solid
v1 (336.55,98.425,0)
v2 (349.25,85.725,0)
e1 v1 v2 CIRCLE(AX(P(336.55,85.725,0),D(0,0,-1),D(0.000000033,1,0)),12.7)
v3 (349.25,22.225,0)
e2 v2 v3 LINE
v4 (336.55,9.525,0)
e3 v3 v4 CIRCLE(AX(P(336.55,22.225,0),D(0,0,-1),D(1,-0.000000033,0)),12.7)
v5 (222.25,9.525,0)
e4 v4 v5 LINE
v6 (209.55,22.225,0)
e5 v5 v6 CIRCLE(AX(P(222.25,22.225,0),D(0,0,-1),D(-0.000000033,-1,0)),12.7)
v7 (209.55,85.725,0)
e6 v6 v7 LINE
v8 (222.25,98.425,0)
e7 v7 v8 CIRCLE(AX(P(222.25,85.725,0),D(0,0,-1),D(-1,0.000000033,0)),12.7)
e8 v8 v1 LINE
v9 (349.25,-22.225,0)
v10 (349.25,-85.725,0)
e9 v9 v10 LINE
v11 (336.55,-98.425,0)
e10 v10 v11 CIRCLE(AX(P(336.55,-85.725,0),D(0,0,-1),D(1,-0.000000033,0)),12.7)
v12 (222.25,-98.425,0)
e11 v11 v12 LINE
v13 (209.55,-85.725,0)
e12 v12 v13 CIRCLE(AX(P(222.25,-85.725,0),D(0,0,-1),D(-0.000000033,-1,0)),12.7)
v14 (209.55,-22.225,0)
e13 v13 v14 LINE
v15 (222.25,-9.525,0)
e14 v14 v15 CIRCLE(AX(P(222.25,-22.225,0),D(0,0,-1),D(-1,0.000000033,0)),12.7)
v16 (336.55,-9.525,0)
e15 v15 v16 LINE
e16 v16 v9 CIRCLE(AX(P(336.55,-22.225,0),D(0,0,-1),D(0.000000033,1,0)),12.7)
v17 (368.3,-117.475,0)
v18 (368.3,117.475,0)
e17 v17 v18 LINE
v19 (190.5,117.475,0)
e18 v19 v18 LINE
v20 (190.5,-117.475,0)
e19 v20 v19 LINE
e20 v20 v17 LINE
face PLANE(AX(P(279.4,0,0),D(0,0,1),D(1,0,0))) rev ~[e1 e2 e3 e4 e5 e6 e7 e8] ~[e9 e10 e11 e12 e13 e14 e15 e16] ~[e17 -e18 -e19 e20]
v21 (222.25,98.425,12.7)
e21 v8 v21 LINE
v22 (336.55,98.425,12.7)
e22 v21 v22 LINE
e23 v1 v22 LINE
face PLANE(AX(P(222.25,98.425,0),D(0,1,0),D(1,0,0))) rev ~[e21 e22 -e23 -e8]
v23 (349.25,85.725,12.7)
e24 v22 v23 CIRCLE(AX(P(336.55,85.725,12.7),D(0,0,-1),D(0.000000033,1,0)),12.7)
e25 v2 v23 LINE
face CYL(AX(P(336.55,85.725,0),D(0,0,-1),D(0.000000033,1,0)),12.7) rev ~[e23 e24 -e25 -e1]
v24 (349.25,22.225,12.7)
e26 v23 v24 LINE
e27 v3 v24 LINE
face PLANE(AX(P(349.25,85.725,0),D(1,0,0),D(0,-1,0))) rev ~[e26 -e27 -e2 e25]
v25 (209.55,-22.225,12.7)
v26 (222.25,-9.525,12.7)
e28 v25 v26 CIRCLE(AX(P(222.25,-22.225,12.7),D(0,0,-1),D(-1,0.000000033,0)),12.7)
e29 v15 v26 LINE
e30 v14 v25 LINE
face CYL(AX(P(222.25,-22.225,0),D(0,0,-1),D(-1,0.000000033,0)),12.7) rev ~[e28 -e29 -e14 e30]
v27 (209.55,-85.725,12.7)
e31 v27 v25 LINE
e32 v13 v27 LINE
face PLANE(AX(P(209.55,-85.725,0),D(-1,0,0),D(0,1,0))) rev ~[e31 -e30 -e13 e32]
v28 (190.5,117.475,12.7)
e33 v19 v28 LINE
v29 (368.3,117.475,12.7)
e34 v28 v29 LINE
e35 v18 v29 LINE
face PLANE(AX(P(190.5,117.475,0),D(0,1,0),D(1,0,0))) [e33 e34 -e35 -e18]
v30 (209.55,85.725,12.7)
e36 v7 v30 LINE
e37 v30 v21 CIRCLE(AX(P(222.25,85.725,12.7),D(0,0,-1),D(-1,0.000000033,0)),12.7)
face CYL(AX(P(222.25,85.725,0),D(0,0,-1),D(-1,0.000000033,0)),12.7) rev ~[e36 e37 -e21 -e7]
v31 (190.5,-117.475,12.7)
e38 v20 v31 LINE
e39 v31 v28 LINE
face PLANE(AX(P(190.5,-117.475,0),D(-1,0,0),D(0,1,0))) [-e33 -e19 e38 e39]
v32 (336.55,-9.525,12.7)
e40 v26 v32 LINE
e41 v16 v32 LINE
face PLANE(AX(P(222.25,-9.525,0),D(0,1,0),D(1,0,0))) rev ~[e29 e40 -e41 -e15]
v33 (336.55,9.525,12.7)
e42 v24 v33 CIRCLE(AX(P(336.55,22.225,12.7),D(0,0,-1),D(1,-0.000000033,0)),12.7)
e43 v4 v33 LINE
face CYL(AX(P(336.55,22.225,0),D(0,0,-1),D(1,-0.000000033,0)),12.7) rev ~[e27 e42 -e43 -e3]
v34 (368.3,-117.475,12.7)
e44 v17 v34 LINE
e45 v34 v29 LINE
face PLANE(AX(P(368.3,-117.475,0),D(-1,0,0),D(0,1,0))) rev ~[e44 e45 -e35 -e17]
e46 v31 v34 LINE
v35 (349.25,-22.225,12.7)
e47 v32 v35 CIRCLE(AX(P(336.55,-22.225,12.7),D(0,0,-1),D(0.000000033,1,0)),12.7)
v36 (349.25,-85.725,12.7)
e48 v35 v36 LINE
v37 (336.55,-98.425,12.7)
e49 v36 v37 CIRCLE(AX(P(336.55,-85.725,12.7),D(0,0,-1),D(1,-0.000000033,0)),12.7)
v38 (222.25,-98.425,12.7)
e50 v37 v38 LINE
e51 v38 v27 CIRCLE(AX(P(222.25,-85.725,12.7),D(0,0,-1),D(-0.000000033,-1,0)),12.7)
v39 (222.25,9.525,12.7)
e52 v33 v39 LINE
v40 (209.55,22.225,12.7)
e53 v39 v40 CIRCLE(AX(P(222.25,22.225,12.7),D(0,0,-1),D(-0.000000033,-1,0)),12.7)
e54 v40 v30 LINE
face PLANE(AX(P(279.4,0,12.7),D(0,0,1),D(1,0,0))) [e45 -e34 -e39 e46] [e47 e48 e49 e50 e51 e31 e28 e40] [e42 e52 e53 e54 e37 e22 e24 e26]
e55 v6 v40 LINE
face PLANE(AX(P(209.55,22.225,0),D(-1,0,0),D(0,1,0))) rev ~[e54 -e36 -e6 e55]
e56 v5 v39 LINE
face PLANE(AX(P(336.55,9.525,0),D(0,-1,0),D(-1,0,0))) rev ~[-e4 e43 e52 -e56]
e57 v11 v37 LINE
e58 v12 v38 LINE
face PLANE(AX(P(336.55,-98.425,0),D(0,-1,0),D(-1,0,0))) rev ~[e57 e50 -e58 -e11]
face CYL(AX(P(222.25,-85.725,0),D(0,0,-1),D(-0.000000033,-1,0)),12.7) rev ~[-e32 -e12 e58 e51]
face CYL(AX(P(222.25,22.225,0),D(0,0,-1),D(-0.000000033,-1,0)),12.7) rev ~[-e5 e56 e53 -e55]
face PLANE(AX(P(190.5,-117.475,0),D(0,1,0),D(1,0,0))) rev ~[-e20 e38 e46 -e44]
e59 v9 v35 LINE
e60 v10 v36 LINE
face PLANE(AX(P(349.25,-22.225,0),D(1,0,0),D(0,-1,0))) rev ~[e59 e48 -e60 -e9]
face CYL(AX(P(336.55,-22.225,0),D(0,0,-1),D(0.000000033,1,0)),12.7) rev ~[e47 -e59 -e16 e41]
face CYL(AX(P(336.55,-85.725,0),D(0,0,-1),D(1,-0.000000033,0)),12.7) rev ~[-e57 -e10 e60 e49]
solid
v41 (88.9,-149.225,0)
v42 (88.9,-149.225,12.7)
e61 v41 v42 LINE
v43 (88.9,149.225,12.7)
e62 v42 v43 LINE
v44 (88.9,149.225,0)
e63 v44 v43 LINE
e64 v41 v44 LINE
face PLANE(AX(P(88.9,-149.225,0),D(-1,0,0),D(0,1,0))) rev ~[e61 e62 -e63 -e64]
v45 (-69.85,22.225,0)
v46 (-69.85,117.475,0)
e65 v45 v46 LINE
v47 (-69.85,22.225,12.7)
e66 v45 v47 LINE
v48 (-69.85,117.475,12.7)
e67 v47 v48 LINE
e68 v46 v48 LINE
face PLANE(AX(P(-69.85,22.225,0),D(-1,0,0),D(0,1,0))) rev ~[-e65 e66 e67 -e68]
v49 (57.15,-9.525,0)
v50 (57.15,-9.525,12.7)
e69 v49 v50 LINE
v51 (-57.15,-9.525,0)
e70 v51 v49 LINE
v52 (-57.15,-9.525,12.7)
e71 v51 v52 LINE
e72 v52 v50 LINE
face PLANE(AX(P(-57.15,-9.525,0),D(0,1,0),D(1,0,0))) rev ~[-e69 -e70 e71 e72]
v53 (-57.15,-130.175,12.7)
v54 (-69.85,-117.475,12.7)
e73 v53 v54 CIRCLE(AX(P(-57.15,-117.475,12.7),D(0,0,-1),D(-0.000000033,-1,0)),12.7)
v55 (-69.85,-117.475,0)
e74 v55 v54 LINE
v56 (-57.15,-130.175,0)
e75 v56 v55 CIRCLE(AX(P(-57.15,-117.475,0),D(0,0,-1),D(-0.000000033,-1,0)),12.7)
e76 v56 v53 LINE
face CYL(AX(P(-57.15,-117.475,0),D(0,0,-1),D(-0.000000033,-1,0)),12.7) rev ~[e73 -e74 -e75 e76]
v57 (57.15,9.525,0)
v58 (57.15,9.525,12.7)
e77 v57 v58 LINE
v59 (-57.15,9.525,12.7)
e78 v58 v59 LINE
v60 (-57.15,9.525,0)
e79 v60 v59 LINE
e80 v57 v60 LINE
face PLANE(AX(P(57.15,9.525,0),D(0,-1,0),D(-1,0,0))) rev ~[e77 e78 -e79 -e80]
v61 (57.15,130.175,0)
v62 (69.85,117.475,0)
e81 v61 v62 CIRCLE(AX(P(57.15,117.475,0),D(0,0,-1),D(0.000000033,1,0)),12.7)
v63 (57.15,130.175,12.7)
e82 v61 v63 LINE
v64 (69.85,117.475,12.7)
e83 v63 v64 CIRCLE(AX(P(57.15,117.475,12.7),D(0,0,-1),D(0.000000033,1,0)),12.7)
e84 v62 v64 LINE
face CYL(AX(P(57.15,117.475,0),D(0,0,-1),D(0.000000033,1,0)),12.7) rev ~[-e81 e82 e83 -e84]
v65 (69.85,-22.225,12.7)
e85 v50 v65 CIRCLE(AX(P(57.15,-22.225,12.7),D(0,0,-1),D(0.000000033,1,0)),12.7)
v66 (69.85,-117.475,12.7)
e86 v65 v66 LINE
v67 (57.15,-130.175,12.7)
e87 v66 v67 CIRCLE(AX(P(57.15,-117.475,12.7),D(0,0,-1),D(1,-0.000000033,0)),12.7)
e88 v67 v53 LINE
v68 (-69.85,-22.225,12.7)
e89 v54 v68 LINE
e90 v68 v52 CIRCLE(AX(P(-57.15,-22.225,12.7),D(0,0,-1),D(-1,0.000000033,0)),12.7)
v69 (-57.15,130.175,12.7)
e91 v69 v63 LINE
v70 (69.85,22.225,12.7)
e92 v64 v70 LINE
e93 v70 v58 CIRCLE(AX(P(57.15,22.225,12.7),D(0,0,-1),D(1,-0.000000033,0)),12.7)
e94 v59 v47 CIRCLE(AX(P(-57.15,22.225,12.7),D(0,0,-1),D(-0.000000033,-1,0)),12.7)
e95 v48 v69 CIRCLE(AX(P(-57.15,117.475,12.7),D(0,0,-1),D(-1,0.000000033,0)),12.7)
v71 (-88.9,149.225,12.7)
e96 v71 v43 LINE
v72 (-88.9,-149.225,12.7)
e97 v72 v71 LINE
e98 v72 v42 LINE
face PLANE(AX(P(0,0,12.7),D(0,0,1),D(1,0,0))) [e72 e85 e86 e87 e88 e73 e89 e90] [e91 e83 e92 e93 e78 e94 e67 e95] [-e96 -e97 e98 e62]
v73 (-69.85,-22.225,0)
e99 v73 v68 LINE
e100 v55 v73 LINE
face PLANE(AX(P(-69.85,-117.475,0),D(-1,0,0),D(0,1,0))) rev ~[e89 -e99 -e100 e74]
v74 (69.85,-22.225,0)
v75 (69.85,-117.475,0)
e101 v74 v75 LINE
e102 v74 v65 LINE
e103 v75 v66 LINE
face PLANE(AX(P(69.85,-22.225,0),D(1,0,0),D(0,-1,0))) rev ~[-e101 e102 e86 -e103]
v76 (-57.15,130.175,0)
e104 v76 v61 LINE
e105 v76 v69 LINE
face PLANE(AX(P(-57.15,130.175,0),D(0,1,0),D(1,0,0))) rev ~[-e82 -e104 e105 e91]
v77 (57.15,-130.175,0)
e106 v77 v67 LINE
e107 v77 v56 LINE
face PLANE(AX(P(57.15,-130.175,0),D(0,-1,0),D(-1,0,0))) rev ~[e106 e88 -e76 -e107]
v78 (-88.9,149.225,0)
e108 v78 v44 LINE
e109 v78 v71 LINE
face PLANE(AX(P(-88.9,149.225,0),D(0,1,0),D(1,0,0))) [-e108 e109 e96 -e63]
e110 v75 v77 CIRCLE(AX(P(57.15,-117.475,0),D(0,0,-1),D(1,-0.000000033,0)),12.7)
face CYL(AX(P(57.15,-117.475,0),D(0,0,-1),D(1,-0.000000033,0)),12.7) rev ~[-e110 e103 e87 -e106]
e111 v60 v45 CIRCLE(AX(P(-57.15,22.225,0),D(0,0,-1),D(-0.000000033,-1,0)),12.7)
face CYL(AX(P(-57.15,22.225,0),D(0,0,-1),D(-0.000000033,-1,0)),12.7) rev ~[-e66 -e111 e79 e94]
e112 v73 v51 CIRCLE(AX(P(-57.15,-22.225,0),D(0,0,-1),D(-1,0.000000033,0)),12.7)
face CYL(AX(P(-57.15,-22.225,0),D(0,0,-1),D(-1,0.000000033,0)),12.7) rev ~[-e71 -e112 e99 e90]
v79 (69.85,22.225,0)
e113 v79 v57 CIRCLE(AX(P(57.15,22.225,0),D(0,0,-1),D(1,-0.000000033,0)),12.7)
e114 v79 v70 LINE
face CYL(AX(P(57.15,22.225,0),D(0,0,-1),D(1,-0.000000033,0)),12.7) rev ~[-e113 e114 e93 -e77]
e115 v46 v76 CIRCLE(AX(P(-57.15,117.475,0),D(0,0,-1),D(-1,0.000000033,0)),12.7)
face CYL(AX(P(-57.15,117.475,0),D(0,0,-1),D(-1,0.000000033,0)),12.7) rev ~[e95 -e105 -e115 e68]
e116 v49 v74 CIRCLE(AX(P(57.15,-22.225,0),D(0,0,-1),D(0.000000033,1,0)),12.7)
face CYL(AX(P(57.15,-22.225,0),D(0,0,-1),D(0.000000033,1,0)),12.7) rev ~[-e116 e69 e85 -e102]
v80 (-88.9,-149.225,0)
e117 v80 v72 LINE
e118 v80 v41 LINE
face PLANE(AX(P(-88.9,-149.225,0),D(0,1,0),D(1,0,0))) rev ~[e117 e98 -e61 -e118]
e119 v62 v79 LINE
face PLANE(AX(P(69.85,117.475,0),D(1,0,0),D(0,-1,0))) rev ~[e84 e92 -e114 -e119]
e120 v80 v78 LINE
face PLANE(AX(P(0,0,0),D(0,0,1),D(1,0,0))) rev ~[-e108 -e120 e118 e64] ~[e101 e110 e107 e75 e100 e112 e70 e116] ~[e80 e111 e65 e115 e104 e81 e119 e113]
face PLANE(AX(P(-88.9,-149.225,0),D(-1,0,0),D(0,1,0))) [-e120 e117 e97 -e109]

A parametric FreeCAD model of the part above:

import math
import FreeCAD as App
import Part
import Sketcher
from FreeCAD import Vector
Q = App.Units.Quantity

doc = App.newDocument("Part")
params = doc.addObject("Spreadsheet::Sheet", "Params")
for row, (alias, value) in enumerate([
    ("sketch1_radius", "0.5 in"),
    ("sketch1_width", "7 in"),
    ("sketch1_width2", "4.5 in"),
    ("sketch1_height", "11.75 in"),
    ("pad1_length", "0.5 in"),
    ("sketch2_radius", "0.5 in"),
    ("sketch2_width", "7 in"),
    ("sketch2_width2", "4.5 in"),
    ("sketch2_height", "2.5 in"),
    ("sketch2_height2", "9.25 in"),
    ("pad2_length", "0.5 in"),
], start=1):
    params.set(f"A{row}", alias)
    params.set(f"B{row}", "=" + value)
    params.setAlias(f"B{row}", alias)

body = doc.addObject("PartDesign::Body", "Body")

# Sketch on XY plane
sketch1 = doc.addObject("Sketcher::SketchObject", "Sketch")
body.addObject(sketch1)
sketch1.AttachmentSupport = (doc.XY_Plane, [""])
sketch1.MapMode = "FlatFace"
sketch1.addGeometry([
    Part.LineSegment(Vector(-89, 149, 0), Vector(-89, -149, 0)),  # 0
    Part.LineSegment(Vector(-89, -149, 0), Vector(89, -149, 0)),  # 1
    Part.LineSegment(Vector(89, -149, 0), Vector(89, 149, 0)),  # 2
    Part.LineSegment(Vector(89, 149, 0), Vector(-89, 149, 0)),  # 3
    Part.LineSegment(Vector(-70, -117, 0), Vector(-70, -22, 0)),  # 4
    Part.ArcOfCircle(Part.Circle(Vector(-57, -22, 0), Vector(0, 0, 1), 13), math.radians(90), math.radians(180)),  # 5
    Part.LineSegment(Vector(-57, -10, 0), Vector(57, -10, 0)),  # 6
    Part.ArcOfCircle(Part.Circle(Vector(57, -22, 0), Vector(0, 0, 1), 13), math.radians(0), math.radians(90)),  # 7
    Part.LineSegment(Vector(70, -22, 0), Vector(70, -117, 0)),  # 8
    Part.ArcOfCircle(Part.Circle(Vector(57, -117, 0), Vector(0, 0, 1), 13), math.radians(-90), math.radians(0)),  # 9
    Part.LineSegment(Vector(57, -130, 0), Vector(-57, -130, 0)),  # 10
    Part.ArcOfCircle(Part.Circle(Vector(-57, -117, 0), Vector(0, 0, 1), 13), math.radians(-180), math.radians(-90)),  # 11
    Part.LineSegment(Vector(-70, 22, 0), Vector(-70, 117, 0)),  # 12
    Part.ArcOfCircle(Part.Circle(Vector(-57, 117, 0), Vector(0, 0, 1), 13), math.radians(90), math.radians(180)),  # 13
    Part.LineSegment(Vector(-57, 130, 0), Vector(57, 130, 0)),  # 14
    Part.ArcOfCircle(Part.Circle(Vector(57, 117, 0), Vector(0, 0, 1), 13), math.radians(0), math.radians(90)),  # 15
    Part.LineSegment(Vector(70, 117, 0), Vector(70, 22, 0)),  # 16
    Part.ArcOfCircle(Part.Circle(Vector(57, 22, 0), Vector(0, 0, 1), 13), math.radians(-90), math.radians(0)),  # 17
    Part.LineSegment(Vector(57, 10, 0), Vector(-57, 10, 0)),  # 18
    Part.ArcOfCircle(Part.Circle(Vector(-57, 22, 0), Vector(0, 0, 1), 13), math.radians(-180), math.radians(-90)),  # 19
], False)
sketch1.addConstraint([
    Sketcher.Constraint("Coincident", 0, 2, 1, 1),
    Sketcher.Constraint("Coincident", 1, 2, 2, 1),
    Sketcher.Constraint("Coincident", 2, 2, 3, 1),
    Sketcher.Constraint("Coincident", 3, 2, 0, 1),
    Sketcher.Constraint("Tangent", 4, 2, 5, 2),
    Sketcher.Constraint("Tangent", 5, 1, 6, 1),
    Sketcher.Constraint("Tangent", 6, 2, 7, 2),
    Sketcher.Constraint("Tangent", 7, 1, 8, 1),
    Sketcher.Constraint("Tangent", 8, 2, 9, 2),
    Sketcher.Constraint("Tangent", 9, 1, 10, 1),
    Sketcher.Constraint("Tangent", 10, 2, 11, 2),
    Sketcher.Constraint("Tangent", 11, 1, 4, 1),
    Sketcher.Constraint("Tangent", 12, 2, 13, 2),
    Sketcher.Constraint("Tangent", 13, 1, 14, 1),
    Sketcher.Constraint("Tangent", 14, 2, 15, 2),
    Sketcher.Constraint("Tangent", 15, 1, 16, 1),
    Sketcher.Constraint("Tangent", 16, 2, 17, 2),
    Sketcher.Constraint("Tangent", 17, 1, 18, 1),
    Sketcher.Constraint("Tangent", 18, 2, 19, 2),
    Sketcher.Constraint("Tangent", 19, 1, 12, 1),
    Sketcher.Constraint("Vertical", 0),
    Sketcher.Constraint("Horizontal", 1),
    Sketcher.Constraint("Vertical", 2),
    Sketcher.Constraint("Horizontal", 3),
    Sketcher.Constraint("Vertical", 4),
    Sketcher.Constraint("Horizontal", 6),
    Sketcher.Constraint("Vertical", 8),
    Sketcher.Constraint("Horizontal", 10),
    Sketcher.Constraint("Vertical", 12),
    Sketcher.Constraint("Horizontal", 14),
    Sketcher.Constraint("Vertical", 16),
    Sketcher.Constraint("Horizontal", 18),
    Sketcher.Constraint("Equal", 5, 7),
    Sketcher.Constraint("Equal", 7, 9),
    Sketcher.Constraint("Equal", 9, 11),
    Sketcher.Constraint("Equal", 11, 13),
    Sketcher.Constraint("Equal", 13, 15),
    Sketcher.Constraint("Equal", 15, 17),
    Sketcher.Constraint("Equal", 17, 19),
    Sketcher.Constraint("Symmetric", 9, 3, 13, 3, -1, 1),
    Sketcher.Constraint("Symmetric", 5, 3, 17, 3, -1, 1),
    Sketcher.Constraint("Symmetric", 0, 2, 2, 2, -1, 1),
    Sketcher.Constraint("Vertical", 11, 3, 13, 3),
    Sketcher.Constraint("Radius", 5, Q("0.5 in")),
    Sketcher.Constraint("DistanceX", 1, 1, 1, 2, Q("7 in")),
    Sketcher.Constraint("DistanceX", 6, 1, 6, 2, Q("4.5 in")),
    Sketcher.Constraint("DistanceY", 0, 2, 5, 3, Q("5 in")),
    Sketcher.Constraint("DistanceY", 5, 1, 12, 2, Q("5 in")),
    Sketcher.Constraint("DistanceY", 0, 2, 0, 1, Q("11.75 in")),
])
sketch1.setExpression("Constraints[43]", "Params.sketch1_radius")
sketch1.setExpression("Constraints[44]", "Params.sketch1_width")
sketch1.setExpression("Constraints[45]", "Params.sketch1_width2")
sketch1.setExpression("Constraints[48]", "Params.sketch1_height")
pad1 = doc.addObject("PartDesign::Pad", "Pad")
body.addObject(pad1)
pad1.Profile = sketch1
pad1.setExpression("Length", "Params.pad1_length")
body2 = doc.addObject("PartDesign::Body", "Body001")

# Sketch on XY plane
sketch2 = doc.addObject("Sketcher::SketchObject", "Sketch001")
body2.addObject(sketch2)
sketch2.AttachmentSupport = (doc.getObject("XY_Plane001"), [""])
sketch2.MapMode = "FlatFace"
sketch2.addGeometry([
    Part.LineSegment(Vector(190, 117, 0), Vector(190, -117, 0)),  # 0
    Part.LineSegment(Vector(190, -117, 0), Vector(368, -117, 0)),  # 1
    Part.LineSegment(Vector(368, -117, 0), Vector(368, 117, 0)),  # 2
    Part.LineSegment(Vector(368, 117, 0), Vector(190, 117, 0)),  # 3
    Part.LineSegment(Vector(337, -98, 0), Vector(222, -98, 0)),  # 4
    Part.ArcOfCircle(Part.Circle(Vector(222, -86, 0), Vector(0, 0, 1), 13), math.radians(-180), math.radians(-90)),  # 5
    Part.LineSegment(Vector(210, -86, 0), Vector(210, -22, 0)),  # 6
    Part.ArcOfCircle(Part.Circle(Vector(222, -22, 0), Vector(0, 0, 1), 13), math.radians(90), math.radians(180)),  # 7
    Part.LineSegment(Vector(222, -10, 0), Vector(337, -10, 0)),  # 8
    Part.ArcOfCircle(Part.Circle(Vector(337, -22, 0), Vector(0, 0, 1), 13), math.radians(0), math.radians(90)),  # 9
    Part.LineSegment(Vector(349, -22, 0), Vector(349, -86, 0)),  # 10
    Part.ArcOfCircle(Part.Circle(Vector(337, -86, 0), Vector(0, 0, 1), 13), math.radians(-90), math.radians(0)),  # 11
    Part.LineSegment(Vector(210, 22, 0), Vector(210, 86, 0)),  # 12
    Part.ArcOfCircle(Part.Circle(Vector(222, 86, 0), Vector(0, 0, 1), 13), math.radians(90), math.radians(180)),  # 13
    Part.LineSegment(Vector(222, 98, 0), Vector(337, 98, 0)),  # 14
    Part.ArcOfCircle(Part.Circle(Vector(337, 86, 0), Vector(0, 0, 1), 13), math.radians(0), math.radians(90)),  # 15
    Part.LineSegment(Vector(349, 86, 0), Vector(349, 22, 0)),  # 16
    Part.ArcOfCircle(Part.Circle(Vector(337, 22, 0), Vector(0, 0, 1), 13), math.radians(-90), math.radians(0)),  # 17
    Part.LineSegment(Vector(337, 10, 0), Vector(222, 10, 0)),  # 18
    Part.ArcOfCircle(Part.Circle(Vector(222, 22, 0), Vector(0, 0, 1), 13), math.radians(-180), math.radians(-90)),  # 19
], False)
sketch2.addConstraint([
    Sketcher.Constraint("Coincident", 0, 2, 1, 1),
    Sketcher.Constraint("Coincident", 1, 2, 2, 1),
    Sketcher.Constraint("Coincident", 2, 2, 3, 1),
    Sketcher.Constraint("Coincident", 3, 2, 0, 1),
    Sketcher.Constraint("Tangent", 4, 2, 5, 2),
    Sketcher.Constraint("Tangent", 5, 1, 6, 1),
    Sketcher.Constraint("Tangent", 6, 2, 7, 2),
    Sketcher.Constraint("Tangent", 7, 1, 8, 1),
    Sketcher.Constraint("Tangent", 8, 2, 9, 2),
    Sketcher.Constraint("Tangent", 9, 1, 10, 1),
    Sketcher.Constraint("Tangent", 10, 2, 11, 2),
    Sketcher.Constraint("Tangent", 11, 1, 4, 1),
    Sketcher.Constraint("Tangent", 12, 2, 13, 2),
    Sketcher.Constraint("Tangent", 13, 1, 14, 1),
    Sketcher.Constraint("Tangent", 14, 2, 15, 2),
    Sketcher.Constraint("Tangent", 15, 1, 16, 1),
    Sketcher.Constraint("Tangent", 16, 2, 17, 2),
    Sketcher.Constraint("Tangent", 17, 1, 18, 1),
    Sketcher.Constraint("Tangent", 18, 2, 19, 2),
    Sketcher.Constraint("Tangent", 19, 1, 12, 1),
    Sketcher.Constraint("Vertical", 0),
    Sketcher.Constraint("Horizontal", 1),
    Sketcher.Constraint("Vertical", 2),
    Sketcher.Constraint("Horizontal", 3),
    Sketcher.Constraint("Horizontal", 4),
    Sketcher.Constraint("Vertical", 6),
    Sketcher.Constraint("Horizontal", 8),
    Sketcher.Constraint("Vertical", 10),
    Sketcher.Constraint("Vertical", 12),
    Sketcher.Constraint("Horizontal", 14),
    Sketcher.Constraint("Vertical", 16),
    Sketcher.Constraint("Horizontal", 18),
    Sketcher.Constraint("Equal", 5, 7),
    Sketcher.Constraint("Equal", 7, 9),
    Sketcher.Constraint("Equal", 9, 11),
    Sketcher.Constraint("Equal", 11, 13),
    Sketcher.Constraint("Equal", 13, 15),
    Sketcher.Constraint("Equal", 15, 17),
    Sketcher.Constraint("Equal", 17, 19),
    Sketcher.Constraint("Symmetric", 5, 3, 13, 3, -1),
    Sketcher.Constraint("Symmetric", 9, 3, 17, 3, -1),
    Sketcher.Constraint("Radius", 5, Q("0.5 in")),
    Sketcher.Constraint("DistanceX", 1, 1, 1, 2, Q("7 in")),
    Sketcher.Constraint("DistanceX", 4, 2, 4, 1, Q("4.5 in")),
    Sketcher.Constraint("DistanceY", 6, 1, 6, 2, Q("2.5 in")),
    Sketcher.Constraint("DistanceY", 0, 2, 0, 1, Q("9.25 in")),
    Sketcher.Constraint("DistanceX", -1, 1, 0, 2, Q("7.5 in")),
    Sketcher.Constraint("DistanceY", 0, 2, 19, 3, Q("5.5 in")),
    Sketcher.Constraint("DistanceY", 9, 3, 2, 2, Q("5.5 in")),
    Sketcher.Constraint("DistanceX", -1, 1, 5, 3, Q("8.75 in")),
])
sketch2.setExpression("Constraints[41]", "Params.sketch2_radius")
sketch2.setExpression("Constraints[42]", "Params.sketch2_width")
sketch2.setExpression("Constraints[43]", "Params.sketch2_width2")
sketch2.setExpression("Constraints[44]", "Params.sketch2_height")
sketch2.setExpression("Constraints[45]", "Params.sketch2_height2")
pad2 = doc.addObject("PartDesign::Pad", "Pad001")
body2.addObject(pad2)
pad2.Profile = sketch2
pad2.setExpression("Length", "Params.pad2_length")

doc.recompute()
